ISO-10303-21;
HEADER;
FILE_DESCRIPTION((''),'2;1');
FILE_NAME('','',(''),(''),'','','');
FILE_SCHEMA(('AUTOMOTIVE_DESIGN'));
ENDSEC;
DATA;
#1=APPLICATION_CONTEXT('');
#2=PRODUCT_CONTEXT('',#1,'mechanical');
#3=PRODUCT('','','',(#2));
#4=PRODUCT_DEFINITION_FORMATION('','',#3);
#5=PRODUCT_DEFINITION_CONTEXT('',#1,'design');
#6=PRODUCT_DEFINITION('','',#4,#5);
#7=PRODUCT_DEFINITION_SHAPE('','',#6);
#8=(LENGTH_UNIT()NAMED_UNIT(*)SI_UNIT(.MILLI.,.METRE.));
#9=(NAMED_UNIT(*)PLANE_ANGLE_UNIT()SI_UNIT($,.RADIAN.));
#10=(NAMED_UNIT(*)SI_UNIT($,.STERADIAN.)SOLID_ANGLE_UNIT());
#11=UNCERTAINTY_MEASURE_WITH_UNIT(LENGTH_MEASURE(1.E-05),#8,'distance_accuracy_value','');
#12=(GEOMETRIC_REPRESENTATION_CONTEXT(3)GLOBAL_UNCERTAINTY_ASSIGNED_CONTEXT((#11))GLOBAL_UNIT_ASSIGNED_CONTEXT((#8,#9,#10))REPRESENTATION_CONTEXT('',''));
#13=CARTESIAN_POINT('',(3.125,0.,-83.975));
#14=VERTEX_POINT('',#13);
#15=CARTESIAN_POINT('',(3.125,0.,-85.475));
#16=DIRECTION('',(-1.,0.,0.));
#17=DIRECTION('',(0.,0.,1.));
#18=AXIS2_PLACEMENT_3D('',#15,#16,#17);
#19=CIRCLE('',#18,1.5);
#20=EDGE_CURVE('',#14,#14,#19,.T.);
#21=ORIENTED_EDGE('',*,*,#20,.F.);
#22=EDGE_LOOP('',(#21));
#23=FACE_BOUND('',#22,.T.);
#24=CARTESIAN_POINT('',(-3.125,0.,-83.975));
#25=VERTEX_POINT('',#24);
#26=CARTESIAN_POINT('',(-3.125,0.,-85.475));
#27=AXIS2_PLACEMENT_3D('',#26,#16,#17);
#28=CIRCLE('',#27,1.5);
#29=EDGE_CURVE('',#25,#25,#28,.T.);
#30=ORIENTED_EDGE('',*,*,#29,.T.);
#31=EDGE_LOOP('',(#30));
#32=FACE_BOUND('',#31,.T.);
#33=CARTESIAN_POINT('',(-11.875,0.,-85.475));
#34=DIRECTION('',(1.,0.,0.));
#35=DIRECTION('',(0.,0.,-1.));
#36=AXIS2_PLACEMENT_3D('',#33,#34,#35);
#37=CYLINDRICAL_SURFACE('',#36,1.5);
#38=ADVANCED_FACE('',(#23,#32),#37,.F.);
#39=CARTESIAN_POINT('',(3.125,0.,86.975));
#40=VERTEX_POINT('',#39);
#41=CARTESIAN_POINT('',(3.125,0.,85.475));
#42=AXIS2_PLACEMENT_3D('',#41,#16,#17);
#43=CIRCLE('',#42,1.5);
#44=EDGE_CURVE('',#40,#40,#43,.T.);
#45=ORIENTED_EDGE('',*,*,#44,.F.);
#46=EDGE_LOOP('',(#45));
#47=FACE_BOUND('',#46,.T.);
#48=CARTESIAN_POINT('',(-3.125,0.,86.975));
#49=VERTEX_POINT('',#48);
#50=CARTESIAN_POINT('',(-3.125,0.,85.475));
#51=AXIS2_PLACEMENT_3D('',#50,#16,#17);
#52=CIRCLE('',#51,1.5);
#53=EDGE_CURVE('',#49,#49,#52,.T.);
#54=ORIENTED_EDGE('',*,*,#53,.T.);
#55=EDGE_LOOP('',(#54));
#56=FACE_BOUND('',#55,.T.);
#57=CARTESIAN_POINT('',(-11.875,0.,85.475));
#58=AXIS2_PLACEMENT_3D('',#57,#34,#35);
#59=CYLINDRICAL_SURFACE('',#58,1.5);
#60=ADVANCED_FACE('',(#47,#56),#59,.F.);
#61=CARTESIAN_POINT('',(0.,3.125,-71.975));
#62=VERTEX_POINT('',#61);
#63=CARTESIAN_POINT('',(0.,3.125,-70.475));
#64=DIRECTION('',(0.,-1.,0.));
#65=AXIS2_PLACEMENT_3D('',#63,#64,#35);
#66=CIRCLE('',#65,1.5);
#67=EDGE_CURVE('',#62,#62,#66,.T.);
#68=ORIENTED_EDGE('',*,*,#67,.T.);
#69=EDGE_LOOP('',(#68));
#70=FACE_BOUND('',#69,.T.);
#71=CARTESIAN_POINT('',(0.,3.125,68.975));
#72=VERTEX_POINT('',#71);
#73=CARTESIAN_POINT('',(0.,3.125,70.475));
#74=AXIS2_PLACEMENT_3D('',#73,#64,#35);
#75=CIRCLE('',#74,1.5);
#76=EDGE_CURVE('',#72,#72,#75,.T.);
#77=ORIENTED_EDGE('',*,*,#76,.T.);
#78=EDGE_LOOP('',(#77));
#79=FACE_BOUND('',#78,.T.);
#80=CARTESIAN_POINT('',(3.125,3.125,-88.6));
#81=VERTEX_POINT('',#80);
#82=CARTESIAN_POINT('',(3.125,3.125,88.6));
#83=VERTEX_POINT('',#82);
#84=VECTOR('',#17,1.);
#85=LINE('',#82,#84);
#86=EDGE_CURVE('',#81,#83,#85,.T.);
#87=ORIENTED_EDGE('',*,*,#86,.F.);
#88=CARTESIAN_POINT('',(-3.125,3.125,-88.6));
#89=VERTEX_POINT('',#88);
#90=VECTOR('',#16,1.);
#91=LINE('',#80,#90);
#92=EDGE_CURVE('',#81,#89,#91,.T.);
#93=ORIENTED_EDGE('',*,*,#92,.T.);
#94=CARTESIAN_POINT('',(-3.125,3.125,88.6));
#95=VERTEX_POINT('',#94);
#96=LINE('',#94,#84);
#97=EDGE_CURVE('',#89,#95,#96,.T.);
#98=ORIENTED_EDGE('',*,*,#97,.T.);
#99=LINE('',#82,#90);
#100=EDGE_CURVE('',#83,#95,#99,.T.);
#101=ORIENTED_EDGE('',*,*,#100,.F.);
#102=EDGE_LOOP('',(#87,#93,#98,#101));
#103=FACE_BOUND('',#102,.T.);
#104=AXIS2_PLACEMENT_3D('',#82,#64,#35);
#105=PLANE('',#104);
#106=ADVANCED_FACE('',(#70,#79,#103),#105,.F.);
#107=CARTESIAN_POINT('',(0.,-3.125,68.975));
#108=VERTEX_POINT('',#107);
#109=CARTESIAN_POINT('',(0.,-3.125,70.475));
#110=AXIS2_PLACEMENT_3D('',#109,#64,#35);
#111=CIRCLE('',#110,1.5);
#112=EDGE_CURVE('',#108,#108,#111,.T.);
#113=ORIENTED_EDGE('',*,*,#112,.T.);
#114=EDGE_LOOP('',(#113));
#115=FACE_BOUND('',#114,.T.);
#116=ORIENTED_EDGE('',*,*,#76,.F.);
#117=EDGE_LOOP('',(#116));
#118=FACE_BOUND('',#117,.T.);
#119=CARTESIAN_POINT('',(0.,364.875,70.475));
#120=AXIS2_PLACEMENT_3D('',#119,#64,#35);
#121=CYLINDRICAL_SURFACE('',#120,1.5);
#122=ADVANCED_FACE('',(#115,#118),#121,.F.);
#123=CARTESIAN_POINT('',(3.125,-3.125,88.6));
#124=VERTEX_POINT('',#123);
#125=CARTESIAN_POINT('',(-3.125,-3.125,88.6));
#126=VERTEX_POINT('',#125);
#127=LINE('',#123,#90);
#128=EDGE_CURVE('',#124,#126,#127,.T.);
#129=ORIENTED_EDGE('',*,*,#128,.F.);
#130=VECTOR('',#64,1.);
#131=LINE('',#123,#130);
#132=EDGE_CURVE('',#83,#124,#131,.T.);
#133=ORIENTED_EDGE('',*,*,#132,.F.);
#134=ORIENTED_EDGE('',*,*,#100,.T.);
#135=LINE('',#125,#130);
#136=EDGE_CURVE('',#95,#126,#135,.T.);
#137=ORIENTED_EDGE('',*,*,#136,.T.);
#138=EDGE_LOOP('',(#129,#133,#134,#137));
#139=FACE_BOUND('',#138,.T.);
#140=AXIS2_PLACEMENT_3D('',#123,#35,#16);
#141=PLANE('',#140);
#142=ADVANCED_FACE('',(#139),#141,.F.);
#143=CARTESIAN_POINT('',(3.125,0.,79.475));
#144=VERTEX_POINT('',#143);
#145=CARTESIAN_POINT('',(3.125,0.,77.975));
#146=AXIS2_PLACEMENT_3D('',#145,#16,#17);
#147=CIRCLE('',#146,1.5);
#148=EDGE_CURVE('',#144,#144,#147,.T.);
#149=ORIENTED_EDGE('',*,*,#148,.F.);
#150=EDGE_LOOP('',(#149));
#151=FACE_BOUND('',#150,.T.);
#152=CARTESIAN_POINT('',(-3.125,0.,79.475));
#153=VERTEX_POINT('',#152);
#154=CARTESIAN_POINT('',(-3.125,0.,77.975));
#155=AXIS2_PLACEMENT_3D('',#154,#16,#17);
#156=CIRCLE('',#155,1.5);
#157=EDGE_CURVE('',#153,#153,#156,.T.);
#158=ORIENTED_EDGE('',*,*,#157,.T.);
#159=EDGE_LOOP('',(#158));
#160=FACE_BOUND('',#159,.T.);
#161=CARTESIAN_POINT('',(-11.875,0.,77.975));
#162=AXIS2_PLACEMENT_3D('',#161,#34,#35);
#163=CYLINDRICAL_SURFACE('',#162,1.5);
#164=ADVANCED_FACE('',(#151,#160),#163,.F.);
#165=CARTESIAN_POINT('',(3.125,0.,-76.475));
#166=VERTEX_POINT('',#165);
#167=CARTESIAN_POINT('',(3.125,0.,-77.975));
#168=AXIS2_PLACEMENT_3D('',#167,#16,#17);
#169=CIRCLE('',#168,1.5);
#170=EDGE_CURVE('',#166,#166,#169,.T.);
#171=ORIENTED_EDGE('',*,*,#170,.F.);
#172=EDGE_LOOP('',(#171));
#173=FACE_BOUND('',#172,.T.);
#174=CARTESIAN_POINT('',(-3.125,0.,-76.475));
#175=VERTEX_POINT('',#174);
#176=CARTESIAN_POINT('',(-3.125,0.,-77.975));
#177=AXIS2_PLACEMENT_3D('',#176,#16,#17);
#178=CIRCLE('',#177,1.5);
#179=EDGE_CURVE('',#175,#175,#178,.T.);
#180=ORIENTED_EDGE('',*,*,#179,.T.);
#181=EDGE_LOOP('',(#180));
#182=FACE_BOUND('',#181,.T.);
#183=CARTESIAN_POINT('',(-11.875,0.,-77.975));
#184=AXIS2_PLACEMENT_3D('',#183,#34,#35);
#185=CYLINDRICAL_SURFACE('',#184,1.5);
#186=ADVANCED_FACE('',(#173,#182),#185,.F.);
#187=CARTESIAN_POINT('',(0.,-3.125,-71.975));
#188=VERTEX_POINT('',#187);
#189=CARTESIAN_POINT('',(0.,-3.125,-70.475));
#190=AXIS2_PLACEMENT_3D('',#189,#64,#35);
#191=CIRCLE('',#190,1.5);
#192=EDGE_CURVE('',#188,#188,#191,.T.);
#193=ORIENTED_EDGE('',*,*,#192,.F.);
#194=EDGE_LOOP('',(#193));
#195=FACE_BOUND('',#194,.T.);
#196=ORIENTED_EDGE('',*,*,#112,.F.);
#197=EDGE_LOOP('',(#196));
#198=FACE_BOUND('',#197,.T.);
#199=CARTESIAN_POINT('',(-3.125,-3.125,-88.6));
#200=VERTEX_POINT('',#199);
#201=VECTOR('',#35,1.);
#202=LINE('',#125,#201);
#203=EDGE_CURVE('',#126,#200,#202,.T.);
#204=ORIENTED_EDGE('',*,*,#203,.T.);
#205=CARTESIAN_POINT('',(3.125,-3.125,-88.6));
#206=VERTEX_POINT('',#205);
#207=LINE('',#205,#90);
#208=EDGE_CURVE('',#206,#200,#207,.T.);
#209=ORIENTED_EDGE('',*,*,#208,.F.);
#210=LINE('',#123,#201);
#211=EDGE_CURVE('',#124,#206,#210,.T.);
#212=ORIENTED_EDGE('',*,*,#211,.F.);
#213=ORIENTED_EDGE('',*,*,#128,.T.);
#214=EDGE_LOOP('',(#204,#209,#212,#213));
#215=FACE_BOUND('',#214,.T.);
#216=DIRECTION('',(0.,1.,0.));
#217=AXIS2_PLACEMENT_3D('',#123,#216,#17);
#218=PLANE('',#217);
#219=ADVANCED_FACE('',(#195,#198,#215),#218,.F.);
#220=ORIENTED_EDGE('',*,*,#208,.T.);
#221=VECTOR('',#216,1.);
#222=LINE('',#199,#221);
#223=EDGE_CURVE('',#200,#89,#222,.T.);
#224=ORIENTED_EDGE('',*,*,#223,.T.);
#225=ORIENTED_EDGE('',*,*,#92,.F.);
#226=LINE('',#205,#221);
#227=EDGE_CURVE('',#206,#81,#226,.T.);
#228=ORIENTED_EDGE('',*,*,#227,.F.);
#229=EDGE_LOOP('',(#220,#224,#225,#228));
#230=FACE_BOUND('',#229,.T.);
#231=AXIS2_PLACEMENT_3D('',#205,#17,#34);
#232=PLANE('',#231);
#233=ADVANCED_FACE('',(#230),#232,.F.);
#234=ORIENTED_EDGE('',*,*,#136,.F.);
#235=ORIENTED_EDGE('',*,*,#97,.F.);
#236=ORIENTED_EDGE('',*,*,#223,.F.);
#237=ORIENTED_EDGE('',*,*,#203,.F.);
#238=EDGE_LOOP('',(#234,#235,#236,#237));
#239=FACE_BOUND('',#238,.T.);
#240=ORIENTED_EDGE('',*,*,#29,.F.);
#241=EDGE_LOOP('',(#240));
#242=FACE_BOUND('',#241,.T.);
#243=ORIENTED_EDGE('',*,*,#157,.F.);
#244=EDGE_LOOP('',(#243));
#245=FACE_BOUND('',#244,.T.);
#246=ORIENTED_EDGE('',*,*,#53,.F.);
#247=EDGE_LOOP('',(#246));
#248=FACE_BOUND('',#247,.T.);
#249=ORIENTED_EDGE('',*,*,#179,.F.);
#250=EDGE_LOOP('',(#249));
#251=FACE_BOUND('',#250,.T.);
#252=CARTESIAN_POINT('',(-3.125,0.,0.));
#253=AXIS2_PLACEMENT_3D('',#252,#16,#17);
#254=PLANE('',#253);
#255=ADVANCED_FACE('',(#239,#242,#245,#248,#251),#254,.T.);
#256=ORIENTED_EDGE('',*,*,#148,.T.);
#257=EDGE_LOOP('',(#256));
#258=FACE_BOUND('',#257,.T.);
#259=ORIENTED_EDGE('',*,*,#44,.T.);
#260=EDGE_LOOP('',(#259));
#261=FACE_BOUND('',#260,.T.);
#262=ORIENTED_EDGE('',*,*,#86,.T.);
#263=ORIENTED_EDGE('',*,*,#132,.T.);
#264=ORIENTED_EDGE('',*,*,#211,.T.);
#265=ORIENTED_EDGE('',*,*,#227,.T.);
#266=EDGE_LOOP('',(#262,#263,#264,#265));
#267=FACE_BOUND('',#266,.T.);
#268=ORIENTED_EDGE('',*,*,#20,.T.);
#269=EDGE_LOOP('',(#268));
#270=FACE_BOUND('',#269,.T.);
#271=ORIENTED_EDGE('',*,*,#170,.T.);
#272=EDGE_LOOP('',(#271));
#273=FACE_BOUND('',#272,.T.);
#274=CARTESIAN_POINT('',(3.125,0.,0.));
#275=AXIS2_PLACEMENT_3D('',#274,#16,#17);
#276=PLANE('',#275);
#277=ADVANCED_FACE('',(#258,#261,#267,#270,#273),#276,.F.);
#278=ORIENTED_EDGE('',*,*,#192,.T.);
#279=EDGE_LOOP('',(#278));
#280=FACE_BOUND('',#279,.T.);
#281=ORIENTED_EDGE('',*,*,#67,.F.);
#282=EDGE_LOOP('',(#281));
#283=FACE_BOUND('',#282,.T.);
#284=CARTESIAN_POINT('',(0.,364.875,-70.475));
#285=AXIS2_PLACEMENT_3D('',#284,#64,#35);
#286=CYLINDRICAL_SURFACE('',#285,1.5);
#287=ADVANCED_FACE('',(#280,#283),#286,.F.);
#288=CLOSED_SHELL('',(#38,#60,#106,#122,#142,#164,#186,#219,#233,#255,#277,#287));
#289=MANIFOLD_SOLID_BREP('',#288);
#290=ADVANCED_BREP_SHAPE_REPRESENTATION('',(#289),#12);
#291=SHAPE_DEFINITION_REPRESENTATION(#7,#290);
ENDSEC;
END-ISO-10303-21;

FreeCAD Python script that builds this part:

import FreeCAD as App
import Part
import Sketcher
from FreeCAD import Vector
Q = App.Units.Quantity


def add_polygon(sketch, points):
    """Adds a closed chain of lines whose ends are joined by coincident constraints."""
    first, n = sketch.GeometryCount, len(points)
    for a, b in zip(points, points[1:] + points[:1]):
        sketch.addGeometry(Part.LineSegment(App.Vector(*a, 0), App.Vector(*b, 0)), False)
    for i in range(n):
        sketch.addConstraint(Sketcher.Constraint("Coincident", first + i, 2, first + (i + 1) % n, 1))

doc = App.newDocument("Part")
body = doc.addObject("PartDesign::Body", "Body")

sketch1 = body.newObject("Sketcher::SketchObject", "Sketch")
sketch1.AttachmentSupport = (doc.getObject("YZ_Plane"), [""])
sketch1.MapMode = "FlatFace"
add_polygon(sketch1, [(3, 89), (-3, 89), (-3, -89), (3, -89)])
sketch1.addConstraint([
    Sketcher.Constraint("Horizontal", 0),
    Sketcher.Constraint("Vertical", 1),
    Sketcher.Constraint("Horizontal", 2),
    Sketcher.Constraint("Vertical", 3),
    Sketcher.Constraint("Symmetric", 0, 2, 2, 2, -1, 1),
    Sketcher.Constraint("DistanceY", 1, 2, 1, 1, Q("177.2 mm")),
    Sketcher.Constraint("DistanceX", 0, 2, 0, 1, Q("6.25 mm")),
])
pad1 = body.newObject("PartDesign::Pad", "Pad")
pad1.Profile = sketch1
pad1.Length = 6.25
pad1.Midplane = True

sketch2 = body.newObject("Sketcher::SketchObject", "Sketch001")
sketch2.AttachmentSupport = (doc.getObject("YZ_Plane"), [""])
sketch2.MapMode = "FlatFace"
sketch2.AttachmentOffset = App.Placement(Vector(0, 0, 3.125), App.Rotation())
sketch2.addGeometry([
    Part.Circle(Vector(0, -85.5, 0), Vector(0, 0, 1), 1.5),
    Part.Circle(Vector(0, -78, 0), Vector(0, 0, 1), 1.5),
    Part.Circle(Vector(0, 85.5, 0), Vector(0, 0, 1), 1.5),
    Part.Circle(Vector(0, 78, 0), Vector(0, 0, 1), 1.5),
], False)
sketch2.addConstraint([
    Sketcher.Constraint("Equal", 0, 1),
    Sketcher.Constraint("Equal", 1, 2),
    Sketcher.Constraint("Equal", 2, 3),
    Sketcher.Constraint("Symmetric", 0, 3, 2, 3, -1, 1),
    Sketcher.Constraint("Symmetric", 1, 3, 3, 3, -1, 1),
    Sketcher.Constraint("PointOnObject", 0, 3, -2),
    Sketcher.Constraint("PointOnObject", 1, 3, -2),
    Sketcher.Constraint("Diameter", 0, Q("3 mm")),
    Sketcher.Constraint("DistanceY", 0, 3, 1, 3, Q("7.5 mm")),
    Sketcher.Constraint("DistanceY", 1, 3, 2, 3, Q("163.45 mm")),
])
pocket1 = body.newObject("PartDesign::Pocket", "Pocket")
pocket1.Profile = sketch2
pocket1.Length = 30
pocket1.Midplane = True

sketch3 = body.newObject("Sketcher::SketchObject", "Sketch002")
sketch3.AttachmentSupport = (doc.getObject("XZ_Plane"), [""])
sketch3.MapMode = "FlatFace"
sketch3.AttachmentOffset = App.Placement(Vector(0, 0, 3.125), App.Rotation())
sketch3.addGeometry([
    Part.Circle(Vector(0, -70.5, 0), Vector(0, 0, 1), 1.5),
    Part.Circle(Vector(0, 70.5, 0), Vector(0, 0, 1), 1.5),
], False)
sketch3.addConstraint([
    Sketcher.Constraint("Equal", 0, 1),
    Sketcher.Constraint("Symmetric", 0, 3, 1, 3, -1, 1),
    Sketcher.Constraint("PointOnObject", 0, 3, -2),
    Sketcher.Constraint("Diameter", 0, Q("3 mm")),
    Sketcher.Constraint("DistanceY", 0, 3, 1, 3, Q("140.95 mm")),
])
pocket2 = body.newObject("PartDesign::Pocket", "Pocket001")
pocket2.Profile = sketch3
pocket2.Length = 368

doc.recompute()
